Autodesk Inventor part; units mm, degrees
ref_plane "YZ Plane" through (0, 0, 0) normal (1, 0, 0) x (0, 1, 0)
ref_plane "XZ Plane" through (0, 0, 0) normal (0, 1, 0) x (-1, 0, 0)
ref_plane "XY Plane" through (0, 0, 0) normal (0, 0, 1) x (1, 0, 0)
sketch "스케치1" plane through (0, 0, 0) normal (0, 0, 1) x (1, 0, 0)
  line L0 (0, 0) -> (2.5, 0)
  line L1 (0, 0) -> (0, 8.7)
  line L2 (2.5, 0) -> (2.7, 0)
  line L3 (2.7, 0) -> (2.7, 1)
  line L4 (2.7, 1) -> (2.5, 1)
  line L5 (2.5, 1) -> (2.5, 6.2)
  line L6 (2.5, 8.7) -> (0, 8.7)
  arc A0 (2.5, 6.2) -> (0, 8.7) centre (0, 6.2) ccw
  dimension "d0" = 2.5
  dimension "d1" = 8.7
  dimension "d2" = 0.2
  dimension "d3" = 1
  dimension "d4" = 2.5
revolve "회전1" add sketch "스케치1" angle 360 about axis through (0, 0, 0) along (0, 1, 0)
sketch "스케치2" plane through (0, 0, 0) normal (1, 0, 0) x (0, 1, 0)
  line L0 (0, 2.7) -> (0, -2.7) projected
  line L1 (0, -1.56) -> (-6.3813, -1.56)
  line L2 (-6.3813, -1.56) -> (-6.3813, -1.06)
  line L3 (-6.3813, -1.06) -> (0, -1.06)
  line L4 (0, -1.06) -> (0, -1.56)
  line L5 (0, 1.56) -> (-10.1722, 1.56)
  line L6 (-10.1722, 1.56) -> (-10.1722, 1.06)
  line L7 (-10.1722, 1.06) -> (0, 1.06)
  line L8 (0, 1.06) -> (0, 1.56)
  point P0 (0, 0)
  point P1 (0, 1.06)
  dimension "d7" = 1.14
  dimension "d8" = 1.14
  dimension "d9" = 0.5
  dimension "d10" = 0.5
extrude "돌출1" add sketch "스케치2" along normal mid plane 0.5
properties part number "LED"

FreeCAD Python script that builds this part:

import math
import FreeCAD as App
import Part
import Sketcher
from FreeCAD import Vector
Q = App.Units.Quantity


def add_polygon(sketch, points):
    """Adds a closed chain of lines whose ends are joined by coincident constraints."""
    first, n = sketch.GeometryCount, len(points)
    for a, b in zip(points, points[1:] + points[:1]):
        sketch.addGeometry(Part.LineSegment(App.Vector(*a, 0), App.Vector(*b, 0)), False)
    for i in range(n):
        sketch.addConstraint(Sketcher.Constraint("Coincident", first + i, 2, first + (i + 1) % n, 1))

doc = App.newDocument("Part")
body = doc.addObject("PartDesign::Body", "Body")

# Sketch on XY plane
sketch1 = body.newObject("Sketcher::SketchObject", "Sketch")
sketch1.AttachmentSupport = (doc.getObject("XY_Plane"), [""])
sketch1.MapMode = "FlatFace"
sketch1.addGeometry(Part.LineSegment(Vector(0, 8.7, 0), Vector(0, 0, 0)), False)
sketch1.addGeometry(Part.LineSegment(Vector(0, 0, 0), Vector(2.7, 0, 0)), False)
sketch1.addGeometry(Part.LineSegment(Vector(2.7, 0, 0), Vector(2.7, 1, 0)), False)
sketch1.addGeometry(Part.LineSegment(Vector(2.7, 1, 0), Vector(2.5, 1, 0)), False)
sketch1.addGeometry(Part.LineSegment(Vector(2.5, 1, 0), Vector(2.5, 6.2, 0)), False)
sketch1.addGeometry(Part.ArcOfCircle(Part.Circle(Vector(0, 6.2, 0), Vector(0, 0, 1), 2.5), math.radians(0), math.radians(90)), False)
sketch1.addConstraint(Sketcher.Constraint("Coincident", 0, 2, 1, 1))
sketch1.addConstraint(Sketcher.Constraint("Coincident", 1, 2, 2, 1))
sketch1.addConstraint(Sketcher.Constraint("Coincident", 2, 2, 3, 1))
sketch1.addConstraint(Sketcher.Constraint("Coincident", 3, 2, 4, 1))
sketch1.addConstraint(Sketcher.Constraint("Tangent", 4, 2, 5, 1))
sketch1.addConstraint(Sketcher.Constraint("Coincident", 5, 2, 0, 1))
sketch1.addConstraint(Sketcher.Constraint("Vertical", 0))
sketch1.addConstraint(Sketcher.Constraint("Horizontal", 1))
sketch1.addConstraint(Sketcher.Constraint("Vertical", 2))
sketch1.addConstraint(Sketcher.Constraint("Horizontal", 3))
sketch1.addConstraint(Sketcher.Constraint("Vertical", 4))
sketch1.addConstraint(Sketcher.Constraint("Coincident", 0, 2, -1, 1))
sketch1.addConstraint(Sketcher.Constraint("PointOnObject", 5, 3, -2))
sketch1.addConstraint(Sketcher.Constraint("Radius", 5, Q("2.5 mm")))
sketch1.addConstraint(Sketcher.Constraint("DistanceY", 2, 1, 2, 2, Q("1 mm")))
sketch1.addConstraint(Sketcher.Constraint("DistanceX", 3, 2, 3, 1, Q("0.2 mm")))
sketch1.addConstraint(Sketcher.Constraint("DistanceY", 0, 2, 0, 1, Q("8.7 mm")))
revolution = body.newObject("PartDesign::Revolution", "Revolution")
revolution.Profile = sketch1
revolution.ReferenceAxis = (sketch1, ["V_Axis"])
revolution.Angle = 360

# Sketch on YZ plane
sketch2 = body.newObject("Sketcher::SketchObject", "Sketch001")
sketch2.AttachmentSupport = (doc.getObject("YZ_Plane"), [""])
sketch2.MapMode = "FlatFace"
add_polygon(sketch2, [(0, -1.6), (0, -1.1), (-6.4, -1.1), (-6.4, -1.6)])  # lines 0-3
add_polygon(sketch2, [(0, 1.1), (0, 1.6), (-10.2, 1.6), (-10.2, 1.1)])  # lines 4-7
sketch2.addConstraint(Sketcher.Constraint("Vertical", 0))
sketch2.addConstraint(Sketcher.Constraint("Horizontal", 1))
sketch2.addConstraint(Sketcher.Constraint("Vertical", 2))
sketch2.addConstraint(Sketcher.Constraint("Horizontal", 3))
sketch2.addConstraint(Sketcher.Constraint("Vertical", 4))
sketch2.addConstraint(Sketcher.Constraint("Horizontal", 5))
sketch2.addConstraint(Sketcher.Constraint("Vertical", 6))
sketch2.addConstraint(Sketcher.Constraint("Horizontal", 7))
sketch2.addConstraint(Sketcher.Constraint("Symmetric", 3, 2, 4, 2, -1, 1))
sketch2.addConstraint(Sketcher.Constraint("Symmetric", 0, 2, 7, 2, -1))
sketch2.addConstraint(Sketcher.Constraint("DistanceY", 0, 1, 0, 2, Q("0.5 mm")))
sketch2.addConstraint(Sketcher.Constraint("DistanceY", 0, 2, -1, 1, Q("1.06 mm")))
sketch2.addConstraint(Sketcher.Constraint("DistanceX", 1, 2, 1, 1, Q("6.3813 mm")))
sketch2.addConstraint(Sketcher.Constraint("DistanceX", 5, 2, 5, 1, Q("10.1722 mm")))
pad1 = body.newObject("PartDesign::Pad", "Pad")
pad1.Profile = sketch2
pad1.Length = 0.5
pad1.Midplane = True

doc.recompute()
